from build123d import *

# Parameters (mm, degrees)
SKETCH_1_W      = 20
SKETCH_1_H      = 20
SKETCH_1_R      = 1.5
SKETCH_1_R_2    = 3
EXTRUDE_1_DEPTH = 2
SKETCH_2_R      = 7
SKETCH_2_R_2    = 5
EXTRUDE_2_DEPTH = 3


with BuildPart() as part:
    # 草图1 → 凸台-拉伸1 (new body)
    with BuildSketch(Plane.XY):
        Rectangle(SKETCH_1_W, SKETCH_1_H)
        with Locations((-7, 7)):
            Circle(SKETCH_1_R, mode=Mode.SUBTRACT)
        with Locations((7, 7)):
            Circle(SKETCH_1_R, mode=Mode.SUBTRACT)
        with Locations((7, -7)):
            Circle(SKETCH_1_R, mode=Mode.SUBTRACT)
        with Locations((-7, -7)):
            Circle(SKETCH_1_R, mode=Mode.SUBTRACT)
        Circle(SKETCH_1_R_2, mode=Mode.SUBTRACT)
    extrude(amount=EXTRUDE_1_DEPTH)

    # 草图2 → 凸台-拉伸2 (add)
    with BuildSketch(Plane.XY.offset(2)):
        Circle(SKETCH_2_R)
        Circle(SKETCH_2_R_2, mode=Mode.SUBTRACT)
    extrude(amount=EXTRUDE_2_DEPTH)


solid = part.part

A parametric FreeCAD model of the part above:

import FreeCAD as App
import Part
import Sketcher
Q = App.Units.Quantity


def add_polygon(sketch, points):
    """Adds a closed chain of lines whose ends are joined by coincident constraints."""
    first, n = sketch.GeometryCount, len(points)
    for a, b in zip(points, points[1:] + points[:1]):
        sketch.addGeometry(Part.LineSegment(App.Vector(*a, 0), App.Vector(*b, 0)), False)
    for i in range(n):
        sketch.addConstraint(Sketcher.Constraint("Coincident", first + i, 2, first + (i + 1) % n, 1))

doc = App.newDocument("Part")
body = doc.addObject("PartDesign::Body", "Body")

# Sketch on XY plane
sketch1 = body.newObject("Sketcher::SketchObject", "Sketch")
sketch1.AttachmentSupport = (doc.getObject("XY_Plane"), [""])
sketch1.MapMode = "FlatFace"
add_polygon(sketch1, [(-10, 10), (-10, -10), (10, -10), (10, 10)])  # lines 0-3
sketch1.addGeometry(Part.Circle(App.Vector(-7, -7, 0), App.Vector(0, 0, 1), 1.5), False)  # 4
sketch1.addGeometry(Part.Circle(App.Vector(7, -7, 0), App.Vector(0, 0, 1), 1.5), False)  # 5
sketch1.addGeometry(Part.Circle(App.Vector(-7, 7, 0), App.Vector(0, 0, 1), 1.5), False)  # 6
sketch1.addGeometry(Part.Circle(App.Vector(0, 0, 0), App.Vector(0, 0, 1), 3), False)  # 7
sketch1.addGeometry(Part.Circle(App.Vector(7, 7, 0), App.Vector(0, 0, 1), 1.5), False)  # 8
sketch1.addConstraint(Sketcher.Constraint("Vertical", 0))
sketch1.addConstraint(Sketcher.Constraint("Horizontal", 1))
sketch1.addConstraint(Sketcher.Constraint("Vertical", 2))
sketch1.addConstraint(Sketcher.Constraint("Horizontal", 3))
sketch1.addConstraint(Sketcher.Constraint("Coincident", 7, 3, -1, 1))
sketch1.addConstraint(Sketcher.Constraint("Equal", 4, 5))
sketch1.addConstraint(Sketcher.Constraint("Equal", 5, 6))
sketch1.addConstraint(Sketcher.Constraint("Equal", 6, 8))
sketch1.addConstraint(Sketcher.Constraint("Symmetric", 5, 3, 6, 3, -1, 1))
sketch1.addConstraint(Sketcher.Constraint("Symmetric", 4, 3, 8, 3, -1, 1))
sketch1.addConstraint(Sketcher.Constraint("Symmetric", 0, 2, 2, 2, -1, 1))
sketch1.addConstraint(Sketcher.Constraint("Symmetric", 4, 3, 5, 3, -2))
sketch1.addConstraint(Sketcher.Constraint("Equal", 3, 0))
sketch1.addConstraint(Sketcher.Constraint("Diameter", 4, Q("3 mm")))
sketch1.addConstraint(Sketcher.Constraint("Diameter", 7, Q("6 mm")))
sketch1.addConstraint(Sketcher.Constraint("DistanceX", 1, 1, 1, 2, Q("20 mm")))
sketch1.addConstraint(Sketcher.Constraint("DistanceX", 4, 3, -1, 1, Q("7 mm")))
sketch1.addConstraint(Sketcher.Constraint("DistanceY", 4, 3, -1, 1, Q("7 mm")))
pad1 = body.newObject("PartDesign::Pad", "Pad")
pad1.Profile = sketch1
pad1.Length = 2

# Sketch on XY plane
sketch2 = body.newObject("Sketcher::SketchObject", "Sketch001")
sketch2.AttachmentSupport = (doc.getObject("XY_Plane"), [""])
sketch2.MapMode = "FlatFace"
sketch2.AttachmentOffset = App.Placement(App.Vector(0, 0, 2), App.Rotation())
sketch2.addGeometry(Part.Circle(App.Vector(0, 0, 0), App.Vector(0, 0, 1), 7), False)
sketch2.addGeometry(Part.Circle(App.Vector(0, 0, 0), App.Vector(0, 0, 1), 5), False)
sketch2.addConstraint(Sketcher.Constraint("Coincident", 0, 3, -1, 1))
sketch2.addConstraint(Sketcher.Constraint("Coincident", 1, 3, -1, 1))
sketch2.addConstraint(Sketcher.Constraint("Diameter", 0, Q("14 mm")))
sketch2.addConstraint(Sketcher.Constraint("Diameter", 1, Q("10 mm")))
pad2 = body.newObject("PartDesign::Pad", "Pad001")
pad2.Profile = sketch2
pad2.Length = 3

doc.recompute()
